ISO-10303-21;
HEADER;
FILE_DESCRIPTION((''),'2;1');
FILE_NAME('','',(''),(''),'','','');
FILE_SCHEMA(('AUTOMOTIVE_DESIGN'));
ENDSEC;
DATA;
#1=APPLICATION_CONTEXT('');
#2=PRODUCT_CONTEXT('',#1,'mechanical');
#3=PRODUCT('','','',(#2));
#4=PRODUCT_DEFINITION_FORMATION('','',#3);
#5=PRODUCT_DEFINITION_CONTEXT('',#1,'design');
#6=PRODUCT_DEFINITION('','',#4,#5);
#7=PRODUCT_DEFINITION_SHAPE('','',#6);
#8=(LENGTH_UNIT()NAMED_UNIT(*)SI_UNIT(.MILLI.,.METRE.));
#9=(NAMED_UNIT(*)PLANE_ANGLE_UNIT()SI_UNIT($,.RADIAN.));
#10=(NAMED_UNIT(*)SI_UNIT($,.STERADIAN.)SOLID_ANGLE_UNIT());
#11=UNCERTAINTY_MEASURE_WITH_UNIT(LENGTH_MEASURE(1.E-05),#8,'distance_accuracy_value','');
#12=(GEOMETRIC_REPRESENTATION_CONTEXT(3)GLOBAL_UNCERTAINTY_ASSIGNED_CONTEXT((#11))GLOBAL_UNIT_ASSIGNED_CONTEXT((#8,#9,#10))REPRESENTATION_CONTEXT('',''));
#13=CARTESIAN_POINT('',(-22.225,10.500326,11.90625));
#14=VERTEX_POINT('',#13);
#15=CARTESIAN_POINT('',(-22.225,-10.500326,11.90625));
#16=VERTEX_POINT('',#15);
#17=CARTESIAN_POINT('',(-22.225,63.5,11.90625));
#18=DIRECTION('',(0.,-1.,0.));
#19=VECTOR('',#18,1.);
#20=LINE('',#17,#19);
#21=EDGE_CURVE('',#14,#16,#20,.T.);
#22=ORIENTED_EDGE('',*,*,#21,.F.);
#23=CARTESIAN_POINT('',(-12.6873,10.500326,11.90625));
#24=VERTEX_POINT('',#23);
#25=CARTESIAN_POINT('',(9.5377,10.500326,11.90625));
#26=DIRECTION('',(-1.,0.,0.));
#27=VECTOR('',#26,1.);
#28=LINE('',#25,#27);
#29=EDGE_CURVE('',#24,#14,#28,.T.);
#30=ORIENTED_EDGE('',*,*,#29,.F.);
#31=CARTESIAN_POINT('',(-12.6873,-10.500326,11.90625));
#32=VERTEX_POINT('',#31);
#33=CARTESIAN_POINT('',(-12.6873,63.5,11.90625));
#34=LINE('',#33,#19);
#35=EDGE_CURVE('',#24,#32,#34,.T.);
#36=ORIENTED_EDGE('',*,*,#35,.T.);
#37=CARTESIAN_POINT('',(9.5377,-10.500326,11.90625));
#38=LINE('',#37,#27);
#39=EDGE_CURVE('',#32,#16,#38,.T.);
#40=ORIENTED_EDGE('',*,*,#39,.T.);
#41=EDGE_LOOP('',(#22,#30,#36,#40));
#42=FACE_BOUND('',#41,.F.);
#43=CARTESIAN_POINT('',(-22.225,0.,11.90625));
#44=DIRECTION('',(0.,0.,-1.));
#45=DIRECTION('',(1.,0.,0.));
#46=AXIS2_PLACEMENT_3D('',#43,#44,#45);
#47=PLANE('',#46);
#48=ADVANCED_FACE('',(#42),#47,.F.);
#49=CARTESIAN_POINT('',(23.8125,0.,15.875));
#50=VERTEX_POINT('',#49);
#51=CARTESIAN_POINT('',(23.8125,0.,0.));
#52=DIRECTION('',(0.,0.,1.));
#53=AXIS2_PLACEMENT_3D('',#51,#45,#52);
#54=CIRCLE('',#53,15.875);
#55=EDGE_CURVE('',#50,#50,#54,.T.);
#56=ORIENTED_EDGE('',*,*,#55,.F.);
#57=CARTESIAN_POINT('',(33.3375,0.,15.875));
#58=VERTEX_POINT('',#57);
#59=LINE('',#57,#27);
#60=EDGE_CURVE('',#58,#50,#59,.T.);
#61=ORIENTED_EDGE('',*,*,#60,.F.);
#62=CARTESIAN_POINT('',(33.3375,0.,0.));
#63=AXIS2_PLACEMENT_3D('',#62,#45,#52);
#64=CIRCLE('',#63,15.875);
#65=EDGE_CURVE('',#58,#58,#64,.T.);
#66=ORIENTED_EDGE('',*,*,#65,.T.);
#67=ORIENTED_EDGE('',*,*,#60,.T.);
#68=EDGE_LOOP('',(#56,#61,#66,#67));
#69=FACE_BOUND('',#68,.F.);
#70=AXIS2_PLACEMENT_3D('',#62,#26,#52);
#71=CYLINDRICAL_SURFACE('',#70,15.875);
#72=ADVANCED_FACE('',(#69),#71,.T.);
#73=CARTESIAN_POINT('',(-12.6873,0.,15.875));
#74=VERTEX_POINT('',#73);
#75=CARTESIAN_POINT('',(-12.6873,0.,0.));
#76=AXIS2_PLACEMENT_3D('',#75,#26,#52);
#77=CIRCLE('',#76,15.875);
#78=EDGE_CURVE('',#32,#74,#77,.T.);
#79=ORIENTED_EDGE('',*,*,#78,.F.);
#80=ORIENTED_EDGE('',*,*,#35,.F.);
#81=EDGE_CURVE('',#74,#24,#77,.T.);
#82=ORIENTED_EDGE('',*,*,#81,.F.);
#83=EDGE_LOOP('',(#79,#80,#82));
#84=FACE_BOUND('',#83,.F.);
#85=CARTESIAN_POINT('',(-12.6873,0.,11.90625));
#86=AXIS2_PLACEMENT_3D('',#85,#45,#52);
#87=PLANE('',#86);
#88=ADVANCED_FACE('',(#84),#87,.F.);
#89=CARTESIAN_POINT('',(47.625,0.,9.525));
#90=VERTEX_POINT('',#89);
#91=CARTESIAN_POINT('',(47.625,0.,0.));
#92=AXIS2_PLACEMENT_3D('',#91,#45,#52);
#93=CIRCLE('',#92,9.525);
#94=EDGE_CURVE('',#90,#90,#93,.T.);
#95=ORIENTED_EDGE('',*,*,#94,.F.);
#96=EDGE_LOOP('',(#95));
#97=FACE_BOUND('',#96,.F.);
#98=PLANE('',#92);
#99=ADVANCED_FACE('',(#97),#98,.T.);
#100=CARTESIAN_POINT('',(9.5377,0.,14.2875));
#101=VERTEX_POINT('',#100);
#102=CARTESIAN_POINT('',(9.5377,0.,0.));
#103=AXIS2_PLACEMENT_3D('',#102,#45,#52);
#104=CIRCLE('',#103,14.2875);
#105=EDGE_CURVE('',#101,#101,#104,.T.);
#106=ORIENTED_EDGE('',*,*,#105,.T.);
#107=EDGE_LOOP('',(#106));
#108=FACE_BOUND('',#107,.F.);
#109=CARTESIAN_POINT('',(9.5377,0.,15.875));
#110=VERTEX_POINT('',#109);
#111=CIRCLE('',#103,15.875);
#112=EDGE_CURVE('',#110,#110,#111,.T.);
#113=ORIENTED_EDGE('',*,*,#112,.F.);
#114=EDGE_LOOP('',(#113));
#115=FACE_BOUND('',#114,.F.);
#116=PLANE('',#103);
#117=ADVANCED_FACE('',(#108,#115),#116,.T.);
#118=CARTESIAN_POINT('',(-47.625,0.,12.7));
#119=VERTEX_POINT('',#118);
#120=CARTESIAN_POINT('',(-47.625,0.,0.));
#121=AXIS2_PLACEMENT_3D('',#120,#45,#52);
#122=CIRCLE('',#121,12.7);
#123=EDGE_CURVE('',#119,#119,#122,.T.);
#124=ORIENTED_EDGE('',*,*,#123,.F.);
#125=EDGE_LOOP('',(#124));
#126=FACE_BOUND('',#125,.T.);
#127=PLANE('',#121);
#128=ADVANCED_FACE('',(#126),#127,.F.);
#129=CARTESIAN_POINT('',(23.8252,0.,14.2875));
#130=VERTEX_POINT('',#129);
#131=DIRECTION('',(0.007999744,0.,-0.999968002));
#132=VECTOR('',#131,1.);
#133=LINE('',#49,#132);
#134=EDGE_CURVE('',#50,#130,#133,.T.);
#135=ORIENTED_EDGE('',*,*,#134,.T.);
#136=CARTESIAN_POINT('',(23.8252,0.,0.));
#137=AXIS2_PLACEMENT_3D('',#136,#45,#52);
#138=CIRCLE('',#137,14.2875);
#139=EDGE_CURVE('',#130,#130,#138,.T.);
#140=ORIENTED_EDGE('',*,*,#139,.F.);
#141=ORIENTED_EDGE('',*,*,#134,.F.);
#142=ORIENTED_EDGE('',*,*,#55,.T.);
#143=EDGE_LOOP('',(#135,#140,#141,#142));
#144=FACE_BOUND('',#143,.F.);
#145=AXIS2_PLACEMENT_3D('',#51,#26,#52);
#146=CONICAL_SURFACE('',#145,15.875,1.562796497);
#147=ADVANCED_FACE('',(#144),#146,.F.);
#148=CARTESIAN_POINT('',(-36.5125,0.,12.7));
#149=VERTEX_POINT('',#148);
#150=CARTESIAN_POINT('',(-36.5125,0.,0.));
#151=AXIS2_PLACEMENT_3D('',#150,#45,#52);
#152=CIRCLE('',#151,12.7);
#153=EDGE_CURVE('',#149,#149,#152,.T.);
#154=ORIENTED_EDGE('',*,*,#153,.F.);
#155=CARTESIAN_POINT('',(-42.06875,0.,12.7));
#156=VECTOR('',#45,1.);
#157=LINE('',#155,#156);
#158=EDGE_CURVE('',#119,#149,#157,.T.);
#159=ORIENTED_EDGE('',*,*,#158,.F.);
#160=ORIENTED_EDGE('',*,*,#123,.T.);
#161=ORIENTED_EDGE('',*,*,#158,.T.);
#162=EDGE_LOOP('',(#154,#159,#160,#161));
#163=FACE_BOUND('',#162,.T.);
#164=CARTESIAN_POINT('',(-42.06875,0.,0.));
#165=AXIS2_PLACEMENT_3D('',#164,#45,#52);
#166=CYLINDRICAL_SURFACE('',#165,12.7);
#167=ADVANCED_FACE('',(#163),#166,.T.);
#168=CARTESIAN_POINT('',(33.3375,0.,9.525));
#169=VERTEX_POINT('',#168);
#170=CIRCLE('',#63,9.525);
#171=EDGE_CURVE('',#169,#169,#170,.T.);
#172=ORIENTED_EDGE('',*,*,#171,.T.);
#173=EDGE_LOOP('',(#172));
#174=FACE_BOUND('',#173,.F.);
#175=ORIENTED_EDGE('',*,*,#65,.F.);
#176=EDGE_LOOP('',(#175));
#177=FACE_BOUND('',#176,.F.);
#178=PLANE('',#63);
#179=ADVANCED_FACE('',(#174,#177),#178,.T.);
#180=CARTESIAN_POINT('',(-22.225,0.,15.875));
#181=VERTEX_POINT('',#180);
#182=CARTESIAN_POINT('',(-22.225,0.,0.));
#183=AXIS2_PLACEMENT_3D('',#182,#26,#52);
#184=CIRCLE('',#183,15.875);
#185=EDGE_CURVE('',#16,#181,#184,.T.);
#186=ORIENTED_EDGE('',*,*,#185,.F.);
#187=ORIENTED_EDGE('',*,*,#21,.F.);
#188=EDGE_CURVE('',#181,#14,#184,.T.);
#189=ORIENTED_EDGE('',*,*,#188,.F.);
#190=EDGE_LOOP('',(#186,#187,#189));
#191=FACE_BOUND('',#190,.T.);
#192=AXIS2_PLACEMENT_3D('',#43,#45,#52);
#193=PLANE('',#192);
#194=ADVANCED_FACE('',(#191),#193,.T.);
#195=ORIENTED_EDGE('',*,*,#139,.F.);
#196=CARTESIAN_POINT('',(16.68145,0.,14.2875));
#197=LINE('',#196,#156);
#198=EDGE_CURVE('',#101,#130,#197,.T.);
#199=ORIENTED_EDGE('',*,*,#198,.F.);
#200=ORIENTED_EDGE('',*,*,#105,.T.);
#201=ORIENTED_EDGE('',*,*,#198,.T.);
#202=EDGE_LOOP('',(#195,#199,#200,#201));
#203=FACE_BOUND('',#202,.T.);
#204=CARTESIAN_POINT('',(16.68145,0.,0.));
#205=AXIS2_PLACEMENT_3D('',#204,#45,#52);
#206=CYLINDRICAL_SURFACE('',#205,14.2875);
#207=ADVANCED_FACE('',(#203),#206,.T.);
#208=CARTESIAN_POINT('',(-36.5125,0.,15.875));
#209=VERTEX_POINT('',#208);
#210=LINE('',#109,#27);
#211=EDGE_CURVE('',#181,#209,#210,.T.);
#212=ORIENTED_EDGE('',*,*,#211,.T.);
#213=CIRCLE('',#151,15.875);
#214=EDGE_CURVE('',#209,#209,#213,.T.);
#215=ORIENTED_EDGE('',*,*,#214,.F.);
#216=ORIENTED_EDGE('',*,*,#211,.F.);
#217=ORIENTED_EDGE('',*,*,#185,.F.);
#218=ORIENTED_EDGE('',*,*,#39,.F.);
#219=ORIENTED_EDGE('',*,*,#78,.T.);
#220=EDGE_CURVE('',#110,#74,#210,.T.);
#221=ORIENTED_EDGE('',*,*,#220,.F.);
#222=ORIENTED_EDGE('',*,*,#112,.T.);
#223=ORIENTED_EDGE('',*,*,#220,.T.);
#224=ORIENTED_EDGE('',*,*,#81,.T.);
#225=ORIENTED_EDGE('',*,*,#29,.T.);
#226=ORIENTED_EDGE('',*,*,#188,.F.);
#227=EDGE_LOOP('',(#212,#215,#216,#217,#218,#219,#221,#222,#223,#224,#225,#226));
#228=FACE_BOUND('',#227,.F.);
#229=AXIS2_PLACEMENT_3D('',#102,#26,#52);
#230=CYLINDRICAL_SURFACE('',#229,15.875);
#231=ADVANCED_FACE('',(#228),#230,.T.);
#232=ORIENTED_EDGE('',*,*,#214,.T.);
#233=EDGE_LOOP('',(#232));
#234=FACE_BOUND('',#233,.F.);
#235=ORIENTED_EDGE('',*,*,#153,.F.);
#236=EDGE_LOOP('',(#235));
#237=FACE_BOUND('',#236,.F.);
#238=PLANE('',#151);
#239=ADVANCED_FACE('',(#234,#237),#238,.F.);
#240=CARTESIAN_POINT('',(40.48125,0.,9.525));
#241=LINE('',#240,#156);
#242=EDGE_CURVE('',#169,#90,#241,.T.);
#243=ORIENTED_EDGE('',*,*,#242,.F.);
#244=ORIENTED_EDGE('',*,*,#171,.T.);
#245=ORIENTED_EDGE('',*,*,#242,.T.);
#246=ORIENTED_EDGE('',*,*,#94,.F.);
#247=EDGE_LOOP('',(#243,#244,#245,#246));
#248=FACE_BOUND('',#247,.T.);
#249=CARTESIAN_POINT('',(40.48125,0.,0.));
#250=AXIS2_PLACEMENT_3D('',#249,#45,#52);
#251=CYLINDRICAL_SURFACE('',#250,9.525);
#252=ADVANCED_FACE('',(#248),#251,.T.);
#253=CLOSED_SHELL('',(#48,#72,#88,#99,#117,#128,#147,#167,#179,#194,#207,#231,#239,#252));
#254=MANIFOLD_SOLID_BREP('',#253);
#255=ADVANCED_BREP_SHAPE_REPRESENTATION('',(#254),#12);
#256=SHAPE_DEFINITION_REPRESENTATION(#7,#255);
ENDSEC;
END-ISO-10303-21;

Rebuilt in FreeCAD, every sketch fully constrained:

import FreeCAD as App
import Part
import Sketcher
Q = App.Units.Quantity


def add_polygon(sketch, points):
    """Adds a closed chain of lines whose ends are joined by coincident constraints."""
    first, n = sketch.GeometryCount, len(points)
    for a, b in zip(points, points[1:] + points[:1]):
        sketch.addGeometry(Part.LineSegment(App.Vector(*a, 0), App.Vector(*b, 0)), False)
    for i in range(n):
        sketch.addConstraint(Sketcher.Constraint("Coincident", first + i, 2, first + (i + 1) % n, 1))

doc = App.newDocument("Part")
body = doc.addObject("PartDesign::Body", "Body")

sketch1 = body.newObject("Sketcher::SketchObject", "Sketch")
sketch1.AttachmentSupport = (doc.getObject("XZ_Plane"), [""])
sketch1.MapMode = "FlatFace"
add_polygon(sketch1, [(-47.6, 12.7), (-47.6, 0), (47.6, 0), (47.6, 9.5), (33.3, 9.5), (33.3, 15.9), (23.8, 15.9), (23.8, 14.3), (9.5, 14.3), (9.5, 15.9), (-36.5, 15.9), (-36.5, 12.7)])
sketch1.addConstraint([
    Sketcher.Constraint("Vertical", 0),
    Sketcher.Constraint("Horizontal", 1),
    Sketcher.Constraint("Vertical", 2),
    Sketcher.Constraint("Horizontal", 3),
    Sketcher.Constraint("Vertical", 4),
    Sketcher.Constraint("Horizontal", 5),
    Sketcher.Constraint("Horizontal", 7),
    Sketcher.Constraint("Vertical", 8),
    Sketcher.Constraint("Horizontal", 9),
    Sketcher.Constraint("Vertical", 10),
    Sketcher.Constraint("Horizontal", 11),
    Sketcher.Constraint("Symmetric", 0, 2, 1, 2, -1, 1),
    Sketcher.Constraint("Horizontal", 5, 2, 8, 2),
    Sketcher.Constraint("Equal", 3, 7),
    Sketcher.Constraint("Equal", 5, 2),
    Sketcher.Constraint("DistanceY", 0, 2, 0, 1, Q("0.5 in")),
    Sketcher.Constraint("DistanceX", 1, 1, 1, 2, Q("3.75 in")),
    Sketcher.Constraint("DistanceY", 4, 1, 4, 2, Q("0.25 in")),
    Sketcher.Constraint("DistanceX", 3, 2, 3, 1, Q("0.5625 in")),
    Sketcher.Constraint("DistanceX", 5, 2, 5, 1, Q("0.375 in")),
    Sketcher.Constraint("DistanceX", 9, 2, 9, 1, Q("1.813 in")),
    Sketcher.Constraint("DistanceX", 11, 2, 11, 1, Q("0.4375 in")),
    Sketcher.Constraint("DistanceY", 8, 1, 8, 2, Q("0.0625 in")),
])
revolution = body.newObject("PartDesign::Revolution", "Revolution")
revolution.Profile = sketch1
revolution.ReferenceAxis = (sketch1, ["H_Axis"])
revolution.Angle = 360

sketch2 = body.newObject("Sketcher::SketchObject", "Sketch001")
sketch2.AttachmentSupport = (doc.getObject("XZ_Plane"), [""])
sketch2.MapMode = "FlatFace"
add_polygon(sketch2, [(-22, 36), (-22, 12), (-13, 12), (-13, 36)])
sketch2.addConstraint([
    Sketcher.Constraint("Vertical", 0),
    Sketcher.Constraint("Horizontal", 1),
    Sketcher.Constraint("Vertical", 2),
    Sketcher.Constraint("Horizontal", 3),
    Sketcher.Constraint("DistanceX", 1, 1, 1, 2, Q("0.3755 in")),
    Sketcher.Constraint("DistanceX", 0, 2, -1, 1, Q("0.875 in")),
    Sketcher.Constraint("DistanceY", -1, 1, 0, 2, Q("0.46875 in")),
    Sketcher.Constraint("DistanceY", 0, 2, 0, 1, Q("23.704022 mm")),
])
pocket1 = body.newObject("PartDesign::Pocket", "Pocket")
pocket1.Profile = sketch2
pocket1.Length = Q("5 in")
pocket1.Midplane = True

doc.recompute()
